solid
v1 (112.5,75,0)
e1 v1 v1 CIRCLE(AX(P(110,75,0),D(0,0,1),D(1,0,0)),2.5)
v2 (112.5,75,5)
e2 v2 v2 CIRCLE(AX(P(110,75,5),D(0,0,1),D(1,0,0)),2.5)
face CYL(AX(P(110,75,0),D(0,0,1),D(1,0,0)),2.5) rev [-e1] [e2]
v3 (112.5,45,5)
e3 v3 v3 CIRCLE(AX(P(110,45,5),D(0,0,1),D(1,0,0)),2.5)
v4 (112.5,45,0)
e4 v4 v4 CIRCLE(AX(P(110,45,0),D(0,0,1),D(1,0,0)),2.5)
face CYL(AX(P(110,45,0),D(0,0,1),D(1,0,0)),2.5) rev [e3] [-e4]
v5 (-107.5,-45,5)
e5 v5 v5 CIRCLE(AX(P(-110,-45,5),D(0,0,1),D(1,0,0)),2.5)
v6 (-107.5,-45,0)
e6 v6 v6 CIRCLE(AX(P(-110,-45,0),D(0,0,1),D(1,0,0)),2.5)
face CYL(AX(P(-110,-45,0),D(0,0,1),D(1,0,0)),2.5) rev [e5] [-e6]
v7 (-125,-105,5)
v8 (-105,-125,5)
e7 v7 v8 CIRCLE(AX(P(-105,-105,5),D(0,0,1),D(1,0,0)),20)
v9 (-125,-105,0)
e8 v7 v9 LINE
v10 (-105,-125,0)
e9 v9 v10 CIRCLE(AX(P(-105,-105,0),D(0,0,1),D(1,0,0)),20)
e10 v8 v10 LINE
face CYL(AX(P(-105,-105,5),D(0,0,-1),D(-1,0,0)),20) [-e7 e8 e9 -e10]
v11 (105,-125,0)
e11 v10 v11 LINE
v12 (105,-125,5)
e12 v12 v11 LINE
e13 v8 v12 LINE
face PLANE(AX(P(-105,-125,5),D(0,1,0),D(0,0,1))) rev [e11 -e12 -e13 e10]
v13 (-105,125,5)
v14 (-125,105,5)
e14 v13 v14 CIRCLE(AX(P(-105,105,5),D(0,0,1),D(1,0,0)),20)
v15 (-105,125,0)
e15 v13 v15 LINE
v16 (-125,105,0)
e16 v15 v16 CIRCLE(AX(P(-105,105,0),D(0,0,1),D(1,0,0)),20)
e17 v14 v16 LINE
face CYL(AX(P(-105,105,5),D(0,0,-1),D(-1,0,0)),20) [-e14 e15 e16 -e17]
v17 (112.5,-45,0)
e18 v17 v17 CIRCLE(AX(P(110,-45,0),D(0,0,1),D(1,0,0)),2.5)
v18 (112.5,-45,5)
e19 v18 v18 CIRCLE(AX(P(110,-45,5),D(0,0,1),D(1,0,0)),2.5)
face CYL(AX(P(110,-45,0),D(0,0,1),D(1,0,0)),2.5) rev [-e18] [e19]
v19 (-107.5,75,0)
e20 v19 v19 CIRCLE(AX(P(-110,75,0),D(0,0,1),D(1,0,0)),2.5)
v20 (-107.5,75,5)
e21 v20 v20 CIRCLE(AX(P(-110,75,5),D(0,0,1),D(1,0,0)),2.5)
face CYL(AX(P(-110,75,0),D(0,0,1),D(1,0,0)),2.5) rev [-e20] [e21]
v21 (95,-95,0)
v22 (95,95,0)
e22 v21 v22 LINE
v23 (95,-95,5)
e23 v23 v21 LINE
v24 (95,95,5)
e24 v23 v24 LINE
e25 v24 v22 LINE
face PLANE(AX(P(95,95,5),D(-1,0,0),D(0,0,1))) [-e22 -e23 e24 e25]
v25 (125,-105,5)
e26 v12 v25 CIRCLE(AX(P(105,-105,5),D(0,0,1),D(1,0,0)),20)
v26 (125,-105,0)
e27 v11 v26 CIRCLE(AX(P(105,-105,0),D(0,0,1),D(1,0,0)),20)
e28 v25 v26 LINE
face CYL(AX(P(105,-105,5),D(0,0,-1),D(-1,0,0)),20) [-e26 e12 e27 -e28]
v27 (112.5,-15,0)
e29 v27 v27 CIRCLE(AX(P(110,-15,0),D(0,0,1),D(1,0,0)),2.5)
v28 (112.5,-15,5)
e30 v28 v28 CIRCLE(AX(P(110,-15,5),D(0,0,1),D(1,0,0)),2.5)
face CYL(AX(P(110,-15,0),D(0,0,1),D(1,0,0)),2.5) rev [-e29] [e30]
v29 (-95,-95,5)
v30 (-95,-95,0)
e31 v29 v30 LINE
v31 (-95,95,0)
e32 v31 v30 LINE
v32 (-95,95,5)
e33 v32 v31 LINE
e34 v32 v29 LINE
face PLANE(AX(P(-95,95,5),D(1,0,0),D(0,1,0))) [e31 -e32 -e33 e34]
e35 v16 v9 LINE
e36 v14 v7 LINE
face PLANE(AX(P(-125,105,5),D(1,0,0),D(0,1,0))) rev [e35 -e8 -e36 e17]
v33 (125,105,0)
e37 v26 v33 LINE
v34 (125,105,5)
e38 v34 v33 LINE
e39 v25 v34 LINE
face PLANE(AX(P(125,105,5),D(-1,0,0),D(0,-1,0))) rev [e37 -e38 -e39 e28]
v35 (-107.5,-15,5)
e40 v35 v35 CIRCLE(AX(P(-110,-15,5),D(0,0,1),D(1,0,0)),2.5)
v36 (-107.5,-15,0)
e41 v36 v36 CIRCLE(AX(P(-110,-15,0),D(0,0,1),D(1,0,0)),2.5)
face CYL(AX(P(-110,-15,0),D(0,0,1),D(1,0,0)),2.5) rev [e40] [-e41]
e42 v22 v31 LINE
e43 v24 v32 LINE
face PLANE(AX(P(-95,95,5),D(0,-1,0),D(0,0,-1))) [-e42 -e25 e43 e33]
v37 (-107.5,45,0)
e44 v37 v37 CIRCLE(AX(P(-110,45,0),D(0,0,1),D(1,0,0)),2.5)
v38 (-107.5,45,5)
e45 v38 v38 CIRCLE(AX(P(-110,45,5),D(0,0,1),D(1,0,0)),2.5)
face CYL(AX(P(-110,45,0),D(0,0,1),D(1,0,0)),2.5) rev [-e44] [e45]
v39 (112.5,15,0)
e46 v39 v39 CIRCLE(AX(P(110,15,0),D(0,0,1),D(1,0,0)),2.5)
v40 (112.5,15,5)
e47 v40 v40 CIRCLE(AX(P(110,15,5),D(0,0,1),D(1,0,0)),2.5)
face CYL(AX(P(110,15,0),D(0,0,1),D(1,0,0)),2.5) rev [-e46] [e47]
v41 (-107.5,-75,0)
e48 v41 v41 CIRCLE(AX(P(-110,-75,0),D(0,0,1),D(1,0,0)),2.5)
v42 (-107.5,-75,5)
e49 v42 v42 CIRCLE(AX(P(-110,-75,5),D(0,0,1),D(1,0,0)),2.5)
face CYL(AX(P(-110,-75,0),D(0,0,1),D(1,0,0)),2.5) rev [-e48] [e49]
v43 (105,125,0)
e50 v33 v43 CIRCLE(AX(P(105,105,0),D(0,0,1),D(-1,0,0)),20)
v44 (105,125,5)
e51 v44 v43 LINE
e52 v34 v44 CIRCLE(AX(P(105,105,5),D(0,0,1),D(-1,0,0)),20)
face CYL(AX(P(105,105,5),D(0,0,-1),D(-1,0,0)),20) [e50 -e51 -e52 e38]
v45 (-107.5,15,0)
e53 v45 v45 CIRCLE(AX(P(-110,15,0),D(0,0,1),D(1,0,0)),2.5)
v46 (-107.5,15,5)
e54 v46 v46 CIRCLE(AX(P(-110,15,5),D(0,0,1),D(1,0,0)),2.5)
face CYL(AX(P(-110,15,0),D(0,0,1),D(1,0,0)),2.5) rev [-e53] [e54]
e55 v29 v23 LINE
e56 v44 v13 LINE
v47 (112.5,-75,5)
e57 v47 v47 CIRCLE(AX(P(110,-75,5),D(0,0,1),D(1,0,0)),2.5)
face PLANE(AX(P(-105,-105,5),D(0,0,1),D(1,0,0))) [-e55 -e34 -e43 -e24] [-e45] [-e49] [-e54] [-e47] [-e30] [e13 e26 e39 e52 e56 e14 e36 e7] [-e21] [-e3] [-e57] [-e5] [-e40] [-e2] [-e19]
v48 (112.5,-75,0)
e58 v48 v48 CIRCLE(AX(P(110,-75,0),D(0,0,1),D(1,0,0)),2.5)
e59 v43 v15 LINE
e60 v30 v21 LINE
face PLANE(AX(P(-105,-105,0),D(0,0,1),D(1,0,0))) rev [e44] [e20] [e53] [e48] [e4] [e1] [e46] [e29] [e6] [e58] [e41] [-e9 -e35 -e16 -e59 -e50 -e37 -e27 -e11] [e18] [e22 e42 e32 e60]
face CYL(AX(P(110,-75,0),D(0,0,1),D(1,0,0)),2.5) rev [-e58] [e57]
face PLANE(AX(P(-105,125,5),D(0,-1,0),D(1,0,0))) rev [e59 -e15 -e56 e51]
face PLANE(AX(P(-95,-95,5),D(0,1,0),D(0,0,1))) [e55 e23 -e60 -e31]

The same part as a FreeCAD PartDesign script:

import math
import FreeCAD as App
import Part
import Sketcher

V = App.Vector

doc = App.newDocument("Part")
body = doc.addObject("PartDesign::Body", "Body")

sketch1 = body.newObject("Sketcher::SketchObject", "Sketch")
sketch1.AttachmentSupport = (doc.getObject("XY_Plane"), [""])
sketch1.MapMode = "FlatFace"
sketch1.addGeometry(Part.LineSegment(V(105, 125, 0), V(-105, 125, 0)), False)
sketch1.addGeometry(Part.ArcOfCircle(Part.Circle(V(-105, 105, 0), V(0, 0, 1), 20), math.radians(90), math.radians(180)), False)
sketch1.addGeometry(Part.LineSegment(V(-125, 105, 0), V(-125, -105, 0)), False)
sketch1.addGeometry(Part.ArcOfCircle(Part.Circle(V(-105, -105, 0), V(0, 0, 1), 20), math.radians(180), math.radians(270)), False)
sketch1.addGeometry(Part.LineSegment(V(-105, -125, 0), V(105, -125, 0)), False)
sketch1.addGeometry(Part.ArcOfCircle(Part.Circle(V(105, -105, 0), V(0, 0, 1), 20), math.radians(-90), math.radians(0)), False)
sketch1.addGeometry(Part.LineSegment(V(125, -105, 0), V(125, 105, 0)), False)
sketch1.addGeometry(Part.ArcOfCircle(Part.Circle(V(105, 105, 0), V(0, 0, 1), 20), math.radians(0), math.radians(90)), False)
sketch1.addGeometry(Part.LineSegment(V(-95, -95, 0), V(-95, 95, 0)), False)
sketch1.addGeometry(Part.LineSegment(V(-95, 95, 0), V(95, 95, 0)), False)
sketch1.addGeometry(Part.LineSegment(V(95, 95, 0), V(95, -95, 0)), False)
sketch1.addGeometry(Part.LineSegment(V(95, -95, 0), V(-95, -95, 0)), False)
sketch1.addConstraint(Sketcher.Constraint("Tangent", 0, 2, 1, 1))
sketch1.addConstraint(Sketcher.Constraint("Tangent", 1, 2, 2, 1))
sketch1.addConstraint(Sketcher.Constraint("Tangent", 2, 2, 3, 1))
sketch1.addConstraint(Sketcher.Constraint("Tangent", 3, 2, 4, 1))
sketch1.addConstraint(Sketcher.Constraint("Tangent", 4, 2, 5, 1))
sketch1.addConstraint(Sketcher.Constraint("Tangent", 5, 2, 6, 1))
sketch1.addConstraint(Sketcher.Constraint("Tangent", 6, 2, 7, 1))
sketch1.addConstraint(Sketcher.Constraint("Tangent", 7, 2, 0, 1))
sketch1.addConstraint(Sketcher.Constraint("Coincident", 8, 2, 9, 1))
sketch1.addConstraint(Sketcher.Constraint("Coincident", 9, 2, 10, 1))
sketch1.addConstraint(Sketcher.Constraint("Coincident", 10, 2, 11, 1))
sketch1.addConstraint(Sketcher.Constraint("Coincident", 11, 2, 8, 1))
sketch1.addConstraint(Sketcher.Constraint("Horizontal", 0))
sketch1.addConstraint(Sketcher.Constraint("Vertical", 2))
sketch1.addConstraint(Sketcher.Constraint("Horizontal", 4))
sketch1.addConstraint(Sketcher.Constraint("Vertical", 6))
sketch1.addConstraint(Sketcher.Constraint("Vertical", 8))
sketch1.addConstraint(Sketcher.Constraint("Horizontal", 9))
sketch1.addConstraint(Sketcher.Constraint("Vertical", 10))
sketch1.addConstraint(Sketcher.Constraint("Horizontal", 11))
sketch1.addConstraint(Sketcher.Constraint("Equal", 1, 3))
sketch1.addConstraint(Sketcher.Constraint("Equal", 3, 5))
sketch1.addConstraint(Sketcher.Constraint("Equal", 5, 7))
sketch1.addConstraint(Sketcher.Constraint("Symmetric", 1, 3, 5, 3, -1, 1))
sketch1.addConstraint(Sketcher.Constraint("Symmetric", 8, 2, 10, 2, -1, 1))
sketch1.addConstraint(Sketcher.Constraint("Equal", 4, 2))
sketch1.addConstraint(Sketcher.Constraint("Equal", 11, 8))
sketch1.addConstraint(Sketcher.Constraint("Radius", 1, 20.0))
sketch1.addConstraint(Sketcher.Constraint("DistanceX", 0, 2, 0, 1, 210.0))
sketch1.addConstraint(Sketcher.Constraint("DistanceX", 9, 1, 9, 2, 190.0))
pad1 = body.newObject("PartDesign::Pad", "Pad")
pad1.Profile = sketch1
pad1.Length = 5

sketch2 = body.newObject("Sketcher::SketchObject", "Sketch001")
sketch2.AttachmentSupport = (doc.getObject("XY_Plane"), [""])
sketch2.MapMode = "FlatFace"
sketch2.AttachmentOffset = App.Placement(V(0, 0, 5), App.Rotation())
sketch2.addGeometry(Part.Circle(V(-110, 75, 0), V(0, 0, 1), 2.5), False)
sketch2.addGeometry(Part.Circle(V(110, 75, 0), V(0, 0, 1), 2.5), False)
sketch2.addConstraint(Sketcher.Constraint("Equal", 0, 1))
sketch2.addConstraint(Sketcher.Constraint("Symmetric", 0, 3, 1, 3, -2))
sketch2.addConstraint(Sketcher.Constraint("Diameter", 0, 5.0))
sketch2.addConstraint(Sketcher.Constraint("DistanceX", 0, 3, -1, 1, 110.0))
sketch2.addConstraint(Sketcher.Constraint("DistanceY", -1, 1, 0, 3, 75.0))
pocket1 = body.newObject("PartDesign::Pocket", "Pocket")
pocket1.Profile = sketch2
pocket1.Type = "ThroughAll"
doc.recompute()

linearpattern = body.newObject("PartDesign::LinearPattern", "LinearPattern")
linearpattern.Originals = [pocket1]
linearpattern.Direction = (doc.getObject("Y_Axis"), [""])
linearpattern.Mode = "offset"
linearpattern.Offset = 30
linearpattern.Occurrences = 6
linearpattern.Reversed = True
body.Tip = linearpattern

doc.recompute()
